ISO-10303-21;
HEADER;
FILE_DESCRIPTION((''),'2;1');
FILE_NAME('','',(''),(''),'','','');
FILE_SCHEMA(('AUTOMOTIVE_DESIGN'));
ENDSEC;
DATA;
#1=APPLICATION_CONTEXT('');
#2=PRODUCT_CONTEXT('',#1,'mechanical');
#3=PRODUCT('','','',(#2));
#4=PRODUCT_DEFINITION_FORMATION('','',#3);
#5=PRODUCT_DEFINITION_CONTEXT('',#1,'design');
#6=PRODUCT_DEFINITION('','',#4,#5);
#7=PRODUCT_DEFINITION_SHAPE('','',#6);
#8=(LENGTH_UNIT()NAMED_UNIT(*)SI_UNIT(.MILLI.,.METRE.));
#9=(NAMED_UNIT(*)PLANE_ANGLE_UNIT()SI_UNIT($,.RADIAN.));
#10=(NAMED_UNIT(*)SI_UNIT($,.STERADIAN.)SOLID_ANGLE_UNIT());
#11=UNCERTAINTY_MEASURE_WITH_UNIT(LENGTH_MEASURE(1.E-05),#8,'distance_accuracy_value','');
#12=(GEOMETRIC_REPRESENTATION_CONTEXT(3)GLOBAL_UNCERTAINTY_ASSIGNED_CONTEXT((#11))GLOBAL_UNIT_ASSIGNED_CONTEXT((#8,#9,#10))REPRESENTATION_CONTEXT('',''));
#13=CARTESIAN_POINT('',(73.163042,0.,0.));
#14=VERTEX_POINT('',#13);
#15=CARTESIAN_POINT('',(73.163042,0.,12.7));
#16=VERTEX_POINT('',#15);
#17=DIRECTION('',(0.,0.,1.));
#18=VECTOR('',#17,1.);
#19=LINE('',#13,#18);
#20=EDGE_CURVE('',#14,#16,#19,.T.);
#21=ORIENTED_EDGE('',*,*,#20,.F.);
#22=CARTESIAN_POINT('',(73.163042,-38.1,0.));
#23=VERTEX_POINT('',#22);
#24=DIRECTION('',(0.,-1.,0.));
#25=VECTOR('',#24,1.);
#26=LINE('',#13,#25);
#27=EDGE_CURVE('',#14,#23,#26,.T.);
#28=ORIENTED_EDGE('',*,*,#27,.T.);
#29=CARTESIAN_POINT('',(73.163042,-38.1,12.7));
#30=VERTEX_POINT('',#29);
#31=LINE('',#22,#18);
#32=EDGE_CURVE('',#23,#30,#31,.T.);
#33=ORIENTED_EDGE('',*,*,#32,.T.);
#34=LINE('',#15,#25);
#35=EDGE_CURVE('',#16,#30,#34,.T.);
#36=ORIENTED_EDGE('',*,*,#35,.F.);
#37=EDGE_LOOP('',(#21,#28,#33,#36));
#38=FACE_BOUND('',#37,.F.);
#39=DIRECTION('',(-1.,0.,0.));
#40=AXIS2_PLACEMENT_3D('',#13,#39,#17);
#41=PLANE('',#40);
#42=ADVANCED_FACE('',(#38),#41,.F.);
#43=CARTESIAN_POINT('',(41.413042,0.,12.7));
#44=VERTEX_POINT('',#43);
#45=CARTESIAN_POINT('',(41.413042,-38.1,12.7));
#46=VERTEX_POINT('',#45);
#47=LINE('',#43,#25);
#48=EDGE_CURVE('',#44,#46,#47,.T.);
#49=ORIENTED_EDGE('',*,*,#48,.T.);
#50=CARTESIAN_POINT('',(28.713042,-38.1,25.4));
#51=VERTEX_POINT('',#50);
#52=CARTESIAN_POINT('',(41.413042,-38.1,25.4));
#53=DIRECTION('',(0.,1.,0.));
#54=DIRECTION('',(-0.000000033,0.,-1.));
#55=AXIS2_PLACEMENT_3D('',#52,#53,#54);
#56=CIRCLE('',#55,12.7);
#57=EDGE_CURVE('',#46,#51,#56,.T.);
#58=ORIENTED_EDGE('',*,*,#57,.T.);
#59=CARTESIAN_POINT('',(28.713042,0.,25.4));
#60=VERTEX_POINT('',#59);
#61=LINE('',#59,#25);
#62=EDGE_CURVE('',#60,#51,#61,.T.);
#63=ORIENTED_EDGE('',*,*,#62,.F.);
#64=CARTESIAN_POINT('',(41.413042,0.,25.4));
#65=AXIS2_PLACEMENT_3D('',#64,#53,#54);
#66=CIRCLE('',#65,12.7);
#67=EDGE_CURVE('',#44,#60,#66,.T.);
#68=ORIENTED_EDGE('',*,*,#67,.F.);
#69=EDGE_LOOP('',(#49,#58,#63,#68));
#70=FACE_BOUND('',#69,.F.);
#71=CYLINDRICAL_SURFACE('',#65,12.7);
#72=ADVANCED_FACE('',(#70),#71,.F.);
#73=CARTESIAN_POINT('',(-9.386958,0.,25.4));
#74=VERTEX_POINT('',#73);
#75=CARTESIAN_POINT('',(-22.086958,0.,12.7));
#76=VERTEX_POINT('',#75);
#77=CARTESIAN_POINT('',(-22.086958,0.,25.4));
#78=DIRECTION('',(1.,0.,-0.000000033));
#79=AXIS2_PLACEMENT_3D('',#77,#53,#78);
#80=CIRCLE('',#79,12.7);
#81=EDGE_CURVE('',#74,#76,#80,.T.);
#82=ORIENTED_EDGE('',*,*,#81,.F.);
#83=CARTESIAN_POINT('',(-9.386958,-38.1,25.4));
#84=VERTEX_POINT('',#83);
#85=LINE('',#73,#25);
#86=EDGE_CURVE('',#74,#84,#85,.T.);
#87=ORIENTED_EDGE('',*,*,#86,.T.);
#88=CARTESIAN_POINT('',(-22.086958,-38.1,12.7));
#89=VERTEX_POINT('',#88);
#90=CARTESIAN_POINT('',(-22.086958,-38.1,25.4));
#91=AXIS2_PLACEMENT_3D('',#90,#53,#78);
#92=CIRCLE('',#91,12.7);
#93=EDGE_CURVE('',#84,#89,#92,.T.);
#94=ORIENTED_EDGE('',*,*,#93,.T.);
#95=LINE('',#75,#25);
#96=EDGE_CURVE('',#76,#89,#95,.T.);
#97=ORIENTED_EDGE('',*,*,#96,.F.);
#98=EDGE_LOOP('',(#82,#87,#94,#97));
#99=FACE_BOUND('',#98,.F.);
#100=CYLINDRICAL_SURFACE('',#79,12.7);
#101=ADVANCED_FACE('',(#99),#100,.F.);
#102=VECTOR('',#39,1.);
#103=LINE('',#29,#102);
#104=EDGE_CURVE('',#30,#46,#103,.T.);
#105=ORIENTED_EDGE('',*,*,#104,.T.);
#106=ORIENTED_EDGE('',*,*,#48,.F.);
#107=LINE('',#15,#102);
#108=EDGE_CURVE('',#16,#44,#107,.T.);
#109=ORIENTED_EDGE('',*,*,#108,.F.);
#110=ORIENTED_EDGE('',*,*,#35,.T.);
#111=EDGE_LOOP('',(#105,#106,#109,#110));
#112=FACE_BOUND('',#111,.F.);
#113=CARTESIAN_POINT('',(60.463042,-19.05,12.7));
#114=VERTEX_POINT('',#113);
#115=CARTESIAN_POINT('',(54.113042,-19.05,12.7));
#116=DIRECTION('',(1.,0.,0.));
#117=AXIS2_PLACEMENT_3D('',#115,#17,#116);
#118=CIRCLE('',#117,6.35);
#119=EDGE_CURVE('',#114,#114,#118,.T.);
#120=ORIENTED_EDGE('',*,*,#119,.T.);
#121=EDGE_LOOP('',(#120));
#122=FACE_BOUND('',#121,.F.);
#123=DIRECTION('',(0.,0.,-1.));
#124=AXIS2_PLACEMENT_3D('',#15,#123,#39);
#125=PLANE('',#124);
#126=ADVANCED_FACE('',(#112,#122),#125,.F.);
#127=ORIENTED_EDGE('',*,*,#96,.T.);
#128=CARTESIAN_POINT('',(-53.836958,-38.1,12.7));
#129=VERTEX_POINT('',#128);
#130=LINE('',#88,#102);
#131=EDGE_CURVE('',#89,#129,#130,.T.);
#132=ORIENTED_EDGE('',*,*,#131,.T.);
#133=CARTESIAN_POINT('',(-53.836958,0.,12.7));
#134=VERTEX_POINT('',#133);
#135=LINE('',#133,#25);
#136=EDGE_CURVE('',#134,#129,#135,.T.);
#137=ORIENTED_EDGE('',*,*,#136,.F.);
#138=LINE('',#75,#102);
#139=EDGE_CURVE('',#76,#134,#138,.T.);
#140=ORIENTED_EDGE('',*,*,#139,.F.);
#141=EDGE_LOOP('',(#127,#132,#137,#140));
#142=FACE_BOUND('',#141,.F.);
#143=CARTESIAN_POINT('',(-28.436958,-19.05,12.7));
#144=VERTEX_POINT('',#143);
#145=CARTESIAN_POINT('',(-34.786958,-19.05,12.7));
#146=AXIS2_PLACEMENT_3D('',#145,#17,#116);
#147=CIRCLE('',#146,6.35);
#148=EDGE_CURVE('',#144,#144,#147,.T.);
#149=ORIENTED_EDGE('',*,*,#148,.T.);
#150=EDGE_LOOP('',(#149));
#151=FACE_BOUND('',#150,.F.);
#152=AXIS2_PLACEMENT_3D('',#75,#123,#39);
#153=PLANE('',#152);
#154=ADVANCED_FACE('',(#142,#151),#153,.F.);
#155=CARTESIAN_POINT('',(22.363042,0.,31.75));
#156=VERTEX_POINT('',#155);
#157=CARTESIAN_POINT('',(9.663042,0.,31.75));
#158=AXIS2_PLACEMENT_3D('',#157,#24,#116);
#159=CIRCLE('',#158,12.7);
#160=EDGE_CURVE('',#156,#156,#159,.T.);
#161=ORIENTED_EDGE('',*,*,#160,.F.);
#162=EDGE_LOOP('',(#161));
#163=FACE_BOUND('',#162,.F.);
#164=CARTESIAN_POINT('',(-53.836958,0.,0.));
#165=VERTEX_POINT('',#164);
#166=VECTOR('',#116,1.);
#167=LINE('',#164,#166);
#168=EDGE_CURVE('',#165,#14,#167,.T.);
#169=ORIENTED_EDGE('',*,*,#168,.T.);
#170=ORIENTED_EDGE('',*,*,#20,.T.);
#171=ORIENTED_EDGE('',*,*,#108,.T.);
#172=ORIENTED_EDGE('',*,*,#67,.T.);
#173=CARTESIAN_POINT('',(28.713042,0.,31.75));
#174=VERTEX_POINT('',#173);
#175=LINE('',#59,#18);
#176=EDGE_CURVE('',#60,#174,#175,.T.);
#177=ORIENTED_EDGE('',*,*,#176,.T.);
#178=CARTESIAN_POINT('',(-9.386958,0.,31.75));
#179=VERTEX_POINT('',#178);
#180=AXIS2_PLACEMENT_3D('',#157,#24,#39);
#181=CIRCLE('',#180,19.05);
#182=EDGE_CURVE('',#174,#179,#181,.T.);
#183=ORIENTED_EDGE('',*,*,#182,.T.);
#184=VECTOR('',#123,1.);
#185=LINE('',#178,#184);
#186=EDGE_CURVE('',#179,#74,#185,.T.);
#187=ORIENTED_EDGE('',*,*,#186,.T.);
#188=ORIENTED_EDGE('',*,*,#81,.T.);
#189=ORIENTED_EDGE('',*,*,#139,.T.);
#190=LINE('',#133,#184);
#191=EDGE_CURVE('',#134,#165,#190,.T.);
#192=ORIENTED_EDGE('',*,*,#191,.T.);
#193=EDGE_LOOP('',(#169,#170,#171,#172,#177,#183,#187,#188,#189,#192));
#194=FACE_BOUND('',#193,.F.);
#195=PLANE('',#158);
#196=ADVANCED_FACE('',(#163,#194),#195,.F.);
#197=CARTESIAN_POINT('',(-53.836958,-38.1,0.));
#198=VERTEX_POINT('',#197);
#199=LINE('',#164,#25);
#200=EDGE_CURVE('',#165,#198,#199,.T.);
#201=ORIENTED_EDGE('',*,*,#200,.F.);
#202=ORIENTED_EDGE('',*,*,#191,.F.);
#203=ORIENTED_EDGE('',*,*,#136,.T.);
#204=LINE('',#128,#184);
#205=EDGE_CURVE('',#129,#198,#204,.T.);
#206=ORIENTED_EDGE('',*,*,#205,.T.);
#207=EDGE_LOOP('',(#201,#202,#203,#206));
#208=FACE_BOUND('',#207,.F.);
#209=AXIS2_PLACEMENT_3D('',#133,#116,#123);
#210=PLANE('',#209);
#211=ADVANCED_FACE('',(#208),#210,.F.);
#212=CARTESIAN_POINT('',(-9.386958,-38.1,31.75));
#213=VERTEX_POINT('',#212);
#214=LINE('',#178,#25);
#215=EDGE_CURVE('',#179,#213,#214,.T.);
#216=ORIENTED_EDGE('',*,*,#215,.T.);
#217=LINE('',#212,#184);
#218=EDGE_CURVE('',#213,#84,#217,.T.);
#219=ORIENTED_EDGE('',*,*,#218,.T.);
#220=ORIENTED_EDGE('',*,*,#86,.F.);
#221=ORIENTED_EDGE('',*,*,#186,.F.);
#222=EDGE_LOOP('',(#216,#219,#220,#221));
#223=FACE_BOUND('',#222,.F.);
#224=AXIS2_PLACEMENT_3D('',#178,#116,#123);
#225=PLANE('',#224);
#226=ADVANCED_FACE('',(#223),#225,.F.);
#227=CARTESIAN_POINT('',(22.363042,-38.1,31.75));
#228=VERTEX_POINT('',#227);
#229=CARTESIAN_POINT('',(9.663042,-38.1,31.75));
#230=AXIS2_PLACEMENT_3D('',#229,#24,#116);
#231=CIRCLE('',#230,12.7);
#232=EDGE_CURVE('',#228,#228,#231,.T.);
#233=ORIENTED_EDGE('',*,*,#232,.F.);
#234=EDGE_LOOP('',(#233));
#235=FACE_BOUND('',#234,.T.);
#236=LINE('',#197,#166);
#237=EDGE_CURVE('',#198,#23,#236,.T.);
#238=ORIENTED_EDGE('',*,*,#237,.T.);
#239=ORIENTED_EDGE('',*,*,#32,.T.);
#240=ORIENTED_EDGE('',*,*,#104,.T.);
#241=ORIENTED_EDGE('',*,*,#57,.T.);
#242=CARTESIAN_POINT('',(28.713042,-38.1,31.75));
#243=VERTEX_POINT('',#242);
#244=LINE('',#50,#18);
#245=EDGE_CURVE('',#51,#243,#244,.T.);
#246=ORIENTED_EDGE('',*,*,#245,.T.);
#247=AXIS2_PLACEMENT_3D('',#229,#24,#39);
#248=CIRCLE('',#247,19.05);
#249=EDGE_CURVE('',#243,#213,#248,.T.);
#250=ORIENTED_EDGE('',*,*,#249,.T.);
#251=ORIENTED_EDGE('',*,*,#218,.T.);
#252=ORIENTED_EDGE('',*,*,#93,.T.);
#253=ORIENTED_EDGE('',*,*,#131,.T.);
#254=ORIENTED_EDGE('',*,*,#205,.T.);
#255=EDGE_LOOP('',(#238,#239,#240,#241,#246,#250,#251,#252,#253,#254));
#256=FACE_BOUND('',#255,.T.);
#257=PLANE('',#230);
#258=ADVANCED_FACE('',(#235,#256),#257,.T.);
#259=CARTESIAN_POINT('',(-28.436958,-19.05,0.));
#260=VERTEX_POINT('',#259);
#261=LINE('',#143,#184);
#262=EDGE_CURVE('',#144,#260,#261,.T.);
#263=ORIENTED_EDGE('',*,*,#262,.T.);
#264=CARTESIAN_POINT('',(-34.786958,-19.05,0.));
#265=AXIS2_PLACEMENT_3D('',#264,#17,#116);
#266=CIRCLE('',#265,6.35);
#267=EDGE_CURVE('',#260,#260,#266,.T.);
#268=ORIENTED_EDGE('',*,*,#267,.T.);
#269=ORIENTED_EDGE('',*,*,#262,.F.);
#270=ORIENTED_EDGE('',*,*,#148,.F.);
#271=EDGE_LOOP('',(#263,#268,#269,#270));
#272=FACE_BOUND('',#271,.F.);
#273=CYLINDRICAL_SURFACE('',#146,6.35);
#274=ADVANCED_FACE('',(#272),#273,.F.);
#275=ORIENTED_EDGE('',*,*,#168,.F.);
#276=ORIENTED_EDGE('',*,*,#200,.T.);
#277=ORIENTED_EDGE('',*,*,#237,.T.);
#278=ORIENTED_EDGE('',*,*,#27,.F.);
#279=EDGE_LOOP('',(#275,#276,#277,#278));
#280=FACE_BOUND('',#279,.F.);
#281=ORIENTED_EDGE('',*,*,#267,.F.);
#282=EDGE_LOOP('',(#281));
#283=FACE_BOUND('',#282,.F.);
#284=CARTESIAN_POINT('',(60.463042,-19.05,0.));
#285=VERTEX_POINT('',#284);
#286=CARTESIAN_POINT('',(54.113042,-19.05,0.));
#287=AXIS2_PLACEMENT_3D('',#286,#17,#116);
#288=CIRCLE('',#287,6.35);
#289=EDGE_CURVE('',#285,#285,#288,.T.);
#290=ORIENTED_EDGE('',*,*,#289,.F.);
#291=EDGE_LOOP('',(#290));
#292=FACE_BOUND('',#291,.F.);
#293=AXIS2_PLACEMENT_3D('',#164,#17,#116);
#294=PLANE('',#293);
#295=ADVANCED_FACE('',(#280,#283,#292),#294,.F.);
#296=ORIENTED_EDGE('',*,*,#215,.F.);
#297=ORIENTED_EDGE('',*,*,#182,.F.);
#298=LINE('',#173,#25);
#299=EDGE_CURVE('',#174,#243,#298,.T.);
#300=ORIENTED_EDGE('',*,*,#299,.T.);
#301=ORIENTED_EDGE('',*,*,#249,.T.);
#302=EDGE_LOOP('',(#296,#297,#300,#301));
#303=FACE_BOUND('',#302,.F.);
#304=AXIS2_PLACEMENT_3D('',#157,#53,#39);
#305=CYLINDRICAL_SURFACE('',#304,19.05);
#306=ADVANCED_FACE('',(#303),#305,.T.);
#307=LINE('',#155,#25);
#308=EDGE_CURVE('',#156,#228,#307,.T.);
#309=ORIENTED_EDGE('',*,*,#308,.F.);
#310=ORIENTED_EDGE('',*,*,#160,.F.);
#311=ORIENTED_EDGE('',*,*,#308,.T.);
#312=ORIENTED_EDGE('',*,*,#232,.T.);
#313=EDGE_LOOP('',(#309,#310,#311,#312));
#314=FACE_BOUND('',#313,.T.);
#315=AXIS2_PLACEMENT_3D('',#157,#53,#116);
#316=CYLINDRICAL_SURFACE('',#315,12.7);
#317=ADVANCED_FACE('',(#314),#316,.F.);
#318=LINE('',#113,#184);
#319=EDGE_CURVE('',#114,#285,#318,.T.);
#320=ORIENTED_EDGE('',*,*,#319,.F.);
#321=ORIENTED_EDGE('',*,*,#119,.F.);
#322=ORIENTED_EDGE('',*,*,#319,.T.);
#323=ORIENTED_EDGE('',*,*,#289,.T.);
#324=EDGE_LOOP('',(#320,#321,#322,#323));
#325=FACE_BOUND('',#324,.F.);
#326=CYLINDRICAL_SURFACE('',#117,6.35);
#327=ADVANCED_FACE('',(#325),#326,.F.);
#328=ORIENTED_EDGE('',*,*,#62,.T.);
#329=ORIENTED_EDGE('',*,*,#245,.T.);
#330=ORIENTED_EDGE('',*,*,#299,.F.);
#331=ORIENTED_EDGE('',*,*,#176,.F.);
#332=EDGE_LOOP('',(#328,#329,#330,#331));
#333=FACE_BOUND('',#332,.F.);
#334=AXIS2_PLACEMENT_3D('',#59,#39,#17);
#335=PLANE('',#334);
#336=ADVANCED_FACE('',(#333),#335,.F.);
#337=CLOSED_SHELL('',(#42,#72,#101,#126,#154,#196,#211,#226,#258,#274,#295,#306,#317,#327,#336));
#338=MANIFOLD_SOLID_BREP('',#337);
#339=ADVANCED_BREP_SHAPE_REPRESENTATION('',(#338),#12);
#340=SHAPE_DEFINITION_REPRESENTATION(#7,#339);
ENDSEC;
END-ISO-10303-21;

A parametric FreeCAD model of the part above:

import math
import FreeCAD as App
import Part
import Sketcher
Q = App.Units.Quantity

doc = App.newDocument("Part")
body = doc.addObject("PartDesign::Body", "Body")

# Sketch on XZ plane
sketch1 = body.newObject("Sketcher::SketchObject", "Sketch")
sketch1.AttachmentSupport = (doc.getObject("XZ_Plane"), [""])
sketch1.MapMode = "FlatFace"
sketch1.addGeometry([
    Part.ArcOfCircle(Part.Circle(App.Vector(9.663042, 31.75, 0), App.Vector(0, 0, 1), 19.05), math.radians(0), math.radians(180)),  # 0
    Part.LineSegment(App.Vector(-9.386958, 31.75, 0), App.Vector(-9.386958, 25.4, 0)),  # 1
    Part.ArcOfCircle(Part.Circle(App.Vector(-22.086958, 25.4, 0), App.Vector(0, 0, 1), 12.7), math.radians(-89.999998), math.radians(-0.000002)),  # 2
    Part.LineSegment(App.Vector(-22.086958, 12.7, 0), App.Vector(-53.836958, 12.7, 0)),  # 3
    Part.LineSegment(App.Vector(-53.836958, 12.7, 0), App.Vector(-53.836958, 0, 0)),  # 4
    Part.LineSegment(App.Vector(-53.836958, 0, 0), App.Vector(73.163042, 0, 0)),  # 5
    Part.LineSegment(App.Vector(73.163042, 0, 0), App.Vector(73.163042, 12.7, 0)),  # 6
    Part.LineSegment(App.Vector(73.163042, 12.7, 0), App.Vector(41.413042, 12.7, 0)),  # 7
    Part.ArcOfCircle(Part.Circle(App.Vector(41.413042, 25.4, 0), App.Vector(0, 0, 1), 12.7), math.radians(-179.999998), math.radians(-90.000002)),  # 8
    Part.LineSegment(App.Vector(28.713042, 25.4, 0), App.Vector(28.713042, 31.75, 0)),  # 9
    Part.Circle(App.Vector(9.663042, 31.75, 0), App.Vector(0, 0, 1), 12.7),  # 10
], False)
sketch1.addConstraint([
    Sketcher.Constraint("Tangent", 0, 2, 1, 1),
    Sketcher.Constraint("Tangent", 1, 2, 2, 2),
    Sketcher.Constraint("Tangent", 2, 1, 3, 1),
    Sketcher.Constraint("Coincident", 3, 2, 4, 1),
    Sketcher.Constraint("Coincident", 4, 2, 5, 1),
    Sketcher.Constraint("Coincident", 5, 2, 6, 1),
    Sketcher.Constraint("Coincident", 6, 2, 7, 1),
    Sketcher.Constraint("Tangent", 7, 2, 8, 2),
    Sketcher.Constraint("Tangent", 8, 1, 9, 1),
    Sketcher.Constraint("Tangent", 9, 2, 0, 1),
    Sketcher.Constraint("Vertical", 1),
    Sketcher.Constraint("Horizontal", 3),
    Sketcher.Constraint("Vertical", 4),
    Sketcher.Constraint("Horizontal", 5),
    Sketcher.Constraint("Vertical", 6),
    Sketcher.Constraint("Horizontal", 7),
    Sketcher.Constraint("Vertical", 9),
    Sketcher.Constraint("Coincident", 10, 3, 0, 3),
    Sketcher.Constraint("Equal", 2, 8),
    Sketcher.Constraint("Equal", 8, 10),
    Sketcher.Constraint("PointOnObject", 4, 2, -1),
    Sketcher.Constraint("Horizontal", 2, 3, 8, 3),
    Sketcher.Constraint("Equal", 3, 7),
    Sketcher.Constraint("Diameter", 10, Q("1 in")),
    Sketcher.Constraint("DistanceX", 5, 1, 5, 2, Q("5 in")),
    Sketcher.Constraint("Radius", 0, Q("0.75 in")),
    Sketcher.Constraint("DistanceY", 4, 2, 4, 1, Q("0.5 in")),
    Sketcher.Constraint("DistanceY", 1, 2, 1, 1, Q("0.25 in")),
    Sketcher.Constraint("DistanceX", 2, 3, -1, 1, 22.086958),
])
pad1 = body.newObject("PartDesign::Pad", "Pad")
pad1.Profile = sketch1
pad1.Length = Q("1.5 in")

# Sketch on XY plane
sketch2 = body.newObject("Sketcher::SketchObject", "Sketch001")
sketch2.AttachmentSupport = (doc.getObject("XY_Plane"), [""])
sketch2.MapMode = "FlatFace"
sketch2.AttachmentOffset = App.Placement(App.Vector(0, 0, 0.5 * 25.4), App.Rotation())
sketch2.addGeometry([
    Part.Circle(App.Vector(54.113042, -19.05, 0), App.Vector(0, 0, 1), 6.35),
    Part.Circle(App.Vector(-34.786958, -19.05, 0), App.Vector(0, 0, 1), 6.35),
], False)
sketch2.addConstraint([
    Sketcher.Constraint("Equal", 0, 1),
    Sketcher.Constraint("Horizontal", 0, 3, 1, 3),
    Sketcher.Constraint("Diameter", 0, Q("0.5 in")),
    Sketcher.Constraint("DistanceX", 1, 3, 0, 3, Q("3.5 in")),
    Sketcher.Constraint("DistanceY", 0, 3, -1, 1, Q("0.75 in")),
    Sketcher.Constraint("DistanceX", -1, 1, 0, 3, 54.113042),
])
pocket1 = body.newObject("PartDesign::Pocket", "Pocket")
pocket1.Profile = sketch2
pocket1.Length = Q("1 in")

doc.recompute()
